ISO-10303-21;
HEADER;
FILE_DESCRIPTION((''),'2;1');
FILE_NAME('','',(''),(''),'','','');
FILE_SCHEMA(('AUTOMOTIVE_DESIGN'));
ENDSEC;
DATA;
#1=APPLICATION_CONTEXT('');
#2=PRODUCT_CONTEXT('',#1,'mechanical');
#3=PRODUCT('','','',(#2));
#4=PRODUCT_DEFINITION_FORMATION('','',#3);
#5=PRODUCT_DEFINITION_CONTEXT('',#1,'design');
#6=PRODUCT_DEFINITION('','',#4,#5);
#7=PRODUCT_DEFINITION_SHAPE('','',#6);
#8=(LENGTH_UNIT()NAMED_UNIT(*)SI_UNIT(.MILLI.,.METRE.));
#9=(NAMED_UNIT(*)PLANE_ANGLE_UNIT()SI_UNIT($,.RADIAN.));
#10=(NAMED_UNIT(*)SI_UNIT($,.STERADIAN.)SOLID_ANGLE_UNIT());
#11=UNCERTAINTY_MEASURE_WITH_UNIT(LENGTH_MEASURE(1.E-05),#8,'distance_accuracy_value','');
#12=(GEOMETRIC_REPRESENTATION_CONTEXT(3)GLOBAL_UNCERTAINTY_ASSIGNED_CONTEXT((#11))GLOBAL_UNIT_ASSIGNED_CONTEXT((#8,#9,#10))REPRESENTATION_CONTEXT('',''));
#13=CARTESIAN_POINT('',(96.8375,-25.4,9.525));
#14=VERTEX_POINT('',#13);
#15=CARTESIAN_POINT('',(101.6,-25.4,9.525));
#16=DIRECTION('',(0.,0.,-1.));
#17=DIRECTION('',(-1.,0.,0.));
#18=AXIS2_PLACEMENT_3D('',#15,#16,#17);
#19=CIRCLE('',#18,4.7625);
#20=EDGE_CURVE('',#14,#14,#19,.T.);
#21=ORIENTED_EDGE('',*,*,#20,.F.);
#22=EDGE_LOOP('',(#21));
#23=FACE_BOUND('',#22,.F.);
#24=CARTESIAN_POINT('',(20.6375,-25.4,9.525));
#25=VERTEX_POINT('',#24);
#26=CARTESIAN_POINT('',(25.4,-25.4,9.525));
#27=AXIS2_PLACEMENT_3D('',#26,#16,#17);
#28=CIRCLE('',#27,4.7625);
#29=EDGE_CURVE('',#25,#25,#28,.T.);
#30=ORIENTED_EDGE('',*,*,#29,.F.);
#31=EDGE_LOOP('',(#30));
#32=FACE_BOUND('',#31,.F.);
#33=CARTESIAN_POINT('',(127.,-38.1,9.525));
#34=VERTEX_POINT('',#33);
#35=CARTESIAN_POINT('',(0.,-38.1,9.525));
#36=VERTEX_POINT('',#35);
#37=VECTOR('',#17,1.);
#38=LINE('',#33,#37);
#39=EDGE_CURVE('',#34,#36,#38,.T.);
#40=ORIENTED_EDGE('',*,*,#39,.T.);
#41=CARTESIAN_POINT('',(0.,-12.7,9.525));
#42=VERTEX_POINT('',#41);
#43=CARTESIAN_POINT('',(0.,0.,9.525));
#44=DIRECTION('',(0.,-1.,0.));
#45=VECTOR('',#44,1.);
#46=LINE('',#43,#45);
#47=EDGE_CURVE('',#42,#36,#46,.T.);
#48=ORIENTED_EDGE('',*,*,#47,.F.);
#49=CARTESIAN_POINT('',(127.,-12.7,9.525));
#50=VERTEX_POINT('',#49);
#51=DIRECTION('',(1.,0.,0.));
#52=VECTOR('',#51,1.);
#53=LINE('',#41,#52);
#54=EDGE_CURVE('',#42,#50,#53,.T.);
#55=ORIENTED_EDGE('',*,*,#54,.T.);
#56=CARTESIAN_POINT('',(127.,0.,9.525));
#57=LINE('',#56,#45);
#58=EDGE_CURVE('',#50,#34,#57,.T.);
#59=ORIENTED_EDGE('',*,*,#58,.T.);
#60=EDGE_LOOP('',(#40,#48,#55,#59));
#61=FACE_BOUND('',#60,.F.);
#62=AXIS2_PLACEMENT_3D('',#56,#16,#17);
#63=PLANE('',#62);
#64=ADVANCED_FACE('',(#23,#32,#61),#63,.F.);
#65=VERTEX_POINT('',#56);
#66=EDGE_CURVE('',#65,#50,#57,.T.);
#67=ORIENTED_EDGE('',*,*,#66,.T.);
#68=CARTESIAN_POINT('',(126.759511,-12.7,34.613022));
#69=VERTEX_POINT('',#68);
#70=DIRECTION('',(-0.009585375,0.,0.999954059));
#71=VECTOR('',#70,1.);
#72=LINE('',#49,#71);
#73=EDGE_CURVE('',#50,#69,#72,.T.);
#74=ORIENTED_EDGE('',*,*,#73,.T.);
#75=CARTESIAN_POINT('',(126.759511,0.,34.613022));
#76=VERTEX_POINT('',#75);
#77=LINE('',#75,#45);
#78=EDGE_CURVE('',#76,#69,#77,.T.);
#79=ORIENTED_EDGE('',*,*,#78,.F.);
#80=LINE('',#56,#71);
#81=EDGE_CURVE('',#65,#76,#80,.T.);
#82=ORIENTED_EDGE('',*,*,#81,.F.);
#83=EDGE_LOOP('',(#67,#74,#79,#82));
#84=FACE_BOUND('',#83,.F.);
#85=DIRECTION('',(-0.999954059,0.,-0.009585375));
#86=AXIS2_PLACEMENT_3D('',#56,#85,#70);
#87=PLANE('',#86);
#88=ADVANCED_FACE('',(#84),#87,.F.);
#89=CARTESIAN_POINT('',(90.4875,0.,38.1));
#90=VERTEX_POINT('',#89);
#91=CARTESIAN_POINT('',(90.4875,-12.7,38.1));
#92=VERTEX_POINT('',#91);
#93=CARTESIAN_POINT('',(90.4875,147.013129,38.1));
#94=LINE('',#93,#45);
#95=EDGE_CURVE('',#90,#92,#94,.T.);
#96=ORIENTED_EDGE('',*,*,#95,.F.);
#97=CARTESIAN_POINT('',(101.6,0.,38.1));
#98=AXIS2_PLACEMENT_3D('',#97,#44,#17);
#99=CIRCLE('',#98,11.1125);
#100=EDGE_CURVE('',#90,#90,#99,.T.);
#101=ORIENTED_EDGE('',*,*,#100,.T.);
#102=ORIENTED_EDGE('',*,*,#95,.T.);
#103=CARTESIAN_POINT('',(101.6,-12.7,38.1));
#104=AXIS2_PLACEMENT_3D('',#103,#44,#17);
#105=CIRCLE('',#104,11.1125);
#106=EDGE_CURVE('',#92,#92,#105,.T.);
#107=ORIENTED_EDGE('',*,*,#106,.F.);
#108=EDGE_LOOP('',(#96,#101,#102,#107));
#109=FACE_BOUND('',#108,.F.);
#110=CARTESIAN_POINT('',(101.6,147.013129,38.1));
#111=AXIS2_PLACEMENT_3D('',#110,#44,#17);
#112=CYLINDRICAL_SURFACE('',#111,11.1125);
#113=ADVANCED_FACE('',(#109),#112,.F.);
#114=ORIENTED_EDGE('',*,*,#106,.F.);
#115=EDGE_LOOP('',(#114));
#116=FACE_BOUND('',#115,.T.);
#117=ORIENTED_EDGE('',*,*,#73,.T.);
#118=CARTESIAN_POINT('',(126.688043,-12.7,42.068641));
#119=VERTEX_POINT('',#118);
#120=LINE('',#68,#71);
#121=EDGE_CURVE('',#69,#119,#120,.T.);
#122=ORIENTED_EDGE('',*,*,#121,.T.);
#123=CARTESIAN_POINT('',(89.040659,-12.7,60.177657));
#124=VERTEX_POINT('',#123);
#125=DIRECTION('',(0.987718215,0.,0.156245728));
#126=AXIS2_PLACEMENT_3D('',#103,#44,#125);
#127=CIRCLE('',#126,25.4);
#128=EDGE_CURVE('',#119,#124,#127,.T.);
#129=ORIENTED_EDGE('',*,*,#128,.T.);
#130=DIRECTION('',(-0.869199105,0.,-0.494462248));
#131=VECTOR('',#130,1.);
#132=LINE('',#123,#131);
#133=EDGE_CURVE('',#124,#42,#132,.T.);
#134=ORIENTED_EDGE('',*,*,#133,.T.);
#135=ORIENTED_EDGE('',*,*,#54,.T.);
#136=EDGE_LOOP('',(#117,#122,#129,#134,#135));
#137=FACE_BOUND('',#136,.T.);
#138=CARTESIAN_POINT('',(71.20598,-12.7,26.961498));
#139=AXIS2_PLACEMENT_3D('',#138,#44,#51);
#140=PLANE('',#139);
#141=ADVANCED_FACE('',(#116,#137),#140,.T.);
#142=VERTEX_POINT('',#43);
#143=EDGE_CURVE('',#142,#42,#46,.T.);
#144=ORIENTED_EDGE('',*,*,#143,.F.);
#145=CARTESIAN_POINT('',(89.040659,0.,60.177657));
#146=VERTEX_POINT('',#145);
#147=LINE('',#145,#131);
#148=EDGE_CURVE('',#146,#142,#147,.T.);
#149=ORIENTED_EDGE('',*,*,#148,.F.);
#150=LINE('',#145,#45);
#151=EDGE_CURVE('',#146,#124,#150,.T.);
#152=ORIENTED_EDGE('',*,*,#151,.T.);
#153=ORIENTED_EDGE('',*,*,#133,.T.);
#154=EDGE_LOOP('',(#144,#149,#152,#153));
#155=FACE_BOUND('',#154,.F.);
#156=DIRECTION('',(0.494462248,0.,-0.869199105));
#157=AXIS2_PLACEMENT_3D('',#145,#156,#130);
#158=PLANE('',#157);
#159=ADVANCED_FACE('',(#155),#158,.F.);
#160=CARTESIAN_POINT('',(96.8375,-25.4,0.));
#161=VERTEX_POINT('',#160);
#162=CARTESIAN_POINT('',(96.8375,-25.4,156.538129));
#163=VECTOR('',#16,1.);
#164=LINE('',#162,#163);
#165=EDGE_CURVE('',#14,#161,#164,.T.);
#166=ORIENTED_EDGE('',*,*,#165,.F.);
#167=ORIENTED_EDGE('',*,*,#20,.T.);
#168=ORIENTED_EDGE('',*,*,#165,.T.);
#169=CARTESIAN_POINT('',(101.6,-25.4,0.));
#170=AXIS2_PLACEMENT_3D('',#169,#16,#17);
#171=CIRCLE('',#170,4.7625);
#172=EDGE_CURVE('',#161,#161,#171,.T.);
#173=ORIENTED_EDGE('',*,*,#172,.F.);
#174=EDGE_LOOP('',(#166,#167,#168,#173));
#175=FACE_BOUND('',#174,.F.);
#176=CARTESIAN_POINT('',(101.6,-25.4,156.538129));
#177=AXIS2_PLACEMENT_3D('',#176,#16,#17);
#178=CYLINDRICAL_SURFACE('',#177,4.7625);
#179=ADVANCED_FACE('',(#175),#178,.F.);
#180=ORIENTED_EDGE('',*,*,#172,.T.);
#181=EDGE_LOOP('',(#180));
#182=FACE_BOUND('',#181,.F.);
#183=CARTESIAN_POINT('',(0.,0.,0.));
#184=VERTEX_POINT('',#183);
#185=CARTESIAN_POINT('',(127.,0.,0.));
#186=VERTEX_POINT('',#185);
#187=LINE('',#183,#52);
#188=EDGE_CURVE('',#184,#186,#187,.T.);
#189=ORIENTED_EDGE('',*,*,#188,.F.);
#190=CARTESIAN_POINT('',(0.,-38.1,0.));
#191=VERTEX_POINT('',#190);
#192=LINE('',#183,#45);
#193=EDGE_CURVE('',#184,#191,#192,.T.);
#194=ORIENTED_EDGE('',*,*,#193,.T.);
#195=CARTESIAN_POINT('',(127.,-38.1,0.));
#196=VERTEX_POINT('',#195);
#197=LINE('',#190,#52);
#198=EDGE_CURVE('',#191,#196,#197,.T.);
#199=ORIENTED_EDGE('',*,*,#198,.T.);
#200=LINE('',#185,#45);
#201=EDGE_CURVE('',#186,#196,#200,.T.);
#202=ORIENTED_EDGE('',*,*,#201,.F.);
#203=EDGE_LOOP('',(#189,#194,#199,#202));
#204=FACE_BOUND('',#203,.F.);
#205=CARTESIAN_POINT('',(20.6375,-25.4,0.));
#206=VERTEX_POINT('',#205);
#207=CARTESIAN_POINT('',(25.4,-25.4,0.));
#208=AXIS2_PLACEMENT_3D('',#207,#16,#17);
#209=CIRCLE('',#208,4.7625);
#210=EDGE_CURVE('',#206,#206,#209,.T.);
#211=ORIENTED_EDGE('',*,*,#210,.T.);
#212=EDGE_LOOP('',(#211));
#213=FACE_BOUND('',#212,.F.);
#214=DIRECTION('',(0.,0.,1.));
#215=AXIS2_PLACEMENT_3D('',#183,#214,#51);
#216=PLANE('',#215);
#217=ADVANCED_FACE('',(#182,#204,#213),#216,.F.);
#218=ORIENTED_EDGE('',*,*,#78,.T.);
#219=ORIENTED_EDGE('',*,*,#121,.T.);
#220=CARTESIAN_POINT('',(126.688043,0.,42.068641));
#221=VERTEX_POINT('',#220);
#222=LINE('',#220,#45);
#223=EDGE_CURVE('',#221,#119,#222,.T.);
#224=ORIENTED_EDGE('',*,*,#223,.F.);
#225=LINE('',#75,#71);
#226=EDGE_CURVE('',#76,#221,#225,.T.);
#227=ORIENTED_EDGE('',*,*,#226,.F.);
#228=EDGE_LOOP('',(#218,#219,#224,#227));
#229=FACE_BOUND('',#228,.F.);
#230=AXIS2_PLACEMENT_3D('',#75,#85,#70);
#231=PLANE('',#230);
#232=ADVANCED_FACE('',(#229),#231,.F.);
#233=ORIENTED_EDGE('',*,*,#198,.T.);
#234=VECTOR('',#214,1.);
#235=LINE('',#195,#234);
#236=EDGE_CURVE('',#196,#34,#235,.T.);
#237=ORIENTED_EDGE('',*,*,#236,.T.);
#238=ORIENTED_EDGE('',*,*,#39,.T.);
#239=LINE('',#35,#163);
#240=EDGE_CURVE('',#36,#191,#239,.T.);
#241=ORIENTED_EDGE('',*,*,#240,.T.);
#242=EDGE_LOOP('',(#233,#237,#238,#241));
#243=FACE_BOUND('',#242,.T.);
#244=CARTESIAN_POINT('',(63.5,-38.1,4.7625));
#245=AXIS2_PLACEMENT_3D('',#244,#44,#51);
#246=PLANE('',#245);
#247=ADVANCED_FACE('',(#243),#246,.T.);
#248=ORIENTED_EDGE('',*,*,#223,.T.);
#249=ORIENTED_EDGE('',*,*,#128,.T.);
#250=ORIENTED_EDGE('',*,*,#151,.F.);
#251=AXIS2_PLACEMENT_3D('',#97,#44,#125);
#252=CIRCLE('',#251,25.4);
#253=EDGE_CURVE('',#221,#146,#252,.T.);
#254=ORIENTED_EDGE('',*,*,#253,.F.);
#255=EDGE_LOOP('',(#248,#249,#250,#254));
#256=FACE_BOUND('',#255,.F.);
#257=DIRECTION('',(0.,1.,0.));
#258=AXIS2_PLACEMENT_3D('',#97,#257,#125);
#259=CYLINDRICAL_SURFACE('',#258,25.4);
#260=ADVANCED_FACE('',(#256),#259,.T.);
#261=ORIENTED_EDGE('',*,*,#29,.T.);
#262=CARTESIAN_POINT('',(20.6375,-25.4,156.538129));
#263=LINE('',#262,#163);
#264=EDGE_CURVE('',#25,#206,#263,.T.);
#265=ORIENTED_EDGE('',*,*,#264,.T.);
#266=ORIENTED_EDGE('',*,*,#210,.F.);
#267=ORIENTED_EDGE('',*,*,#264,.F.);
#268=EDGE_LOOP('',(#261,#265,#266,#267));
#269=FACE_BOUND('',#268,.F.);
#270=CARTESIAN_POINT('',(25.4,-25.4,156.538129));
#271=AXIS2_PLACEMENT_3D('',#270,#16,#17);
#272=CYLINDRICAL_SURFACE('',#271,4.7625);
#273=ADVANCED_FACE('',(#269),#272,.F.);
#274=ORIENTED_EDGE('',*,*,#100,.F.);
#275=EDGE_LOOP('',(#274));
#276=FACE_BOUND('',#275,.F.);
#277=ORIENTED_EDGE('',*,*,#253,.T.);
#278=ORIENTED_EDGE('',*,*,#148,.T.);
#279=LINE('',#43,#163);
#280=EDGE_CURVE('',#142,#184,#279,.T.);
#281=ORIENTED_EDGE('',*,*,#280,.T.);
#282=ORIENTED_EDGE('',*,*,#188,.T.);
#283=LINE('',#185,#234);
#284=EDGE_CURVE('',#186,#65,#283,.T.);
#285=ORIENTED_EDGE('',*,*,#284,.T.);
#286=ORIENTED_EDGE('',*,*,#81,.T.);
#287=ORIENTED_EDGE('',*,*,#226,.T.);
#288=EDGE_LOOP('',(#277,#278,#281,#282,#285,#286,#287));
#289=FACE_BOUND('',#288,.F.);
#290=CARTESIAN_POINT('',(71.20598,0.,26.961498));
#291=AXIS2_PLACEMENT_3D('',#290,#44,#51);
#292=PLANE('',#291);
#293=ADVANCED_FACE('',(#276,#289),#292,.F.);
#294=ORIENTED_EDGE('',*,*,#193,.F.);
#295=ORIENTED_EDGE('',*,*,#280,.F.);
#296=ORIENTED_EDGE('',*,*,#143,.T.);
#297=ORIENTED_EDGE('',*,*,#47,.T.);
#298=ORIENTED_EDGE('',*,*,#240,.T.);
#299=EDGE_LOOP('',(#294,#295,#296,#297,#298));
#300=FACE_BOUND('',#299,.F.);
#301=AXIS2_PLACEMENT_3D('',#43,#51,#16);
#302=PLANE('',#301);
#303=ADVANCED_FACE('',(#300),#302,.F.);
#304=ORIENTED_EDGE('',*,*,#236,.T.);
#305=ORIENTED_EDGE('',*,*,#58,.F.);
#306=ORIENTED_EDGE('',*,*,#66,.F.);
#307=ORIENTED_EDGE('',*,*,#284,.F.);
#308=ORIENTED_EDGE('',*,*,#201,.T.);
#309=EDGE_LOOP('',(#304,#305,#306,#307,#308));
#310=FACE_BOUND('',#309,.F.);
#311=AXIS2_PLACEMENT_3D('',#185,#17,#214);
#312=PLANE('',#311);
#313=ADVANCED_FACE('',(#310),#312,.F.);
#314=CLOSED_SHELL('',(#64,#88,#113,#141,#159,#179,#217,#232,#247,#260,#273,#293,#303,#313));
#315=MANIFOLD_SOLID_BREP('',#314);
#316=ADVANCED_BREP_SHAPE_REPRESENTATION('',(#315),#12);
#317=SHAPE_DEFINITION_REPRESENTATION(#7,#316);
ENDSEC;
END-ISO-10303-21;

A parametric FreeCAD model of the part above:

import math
import FreeCAD as App
import Part
import Sketcher
from FreeCAD import Vector
Q = App.Units.Quantity


def add_polygon(sketch, points):
    """Adds a closed chain of lines whose ends are joined by coincident constraints."""
    first, n = sketch.GeometryCount, len(points)
    for a, b in zip(points, points[1:] + points[:1]):
        sketch.addGeometry(Part.LineSegment(App.Vector(*a, 0), App.Vector(*b, 0)), False)
    for i in range(n):
        sketch.addConstraint(Sketcher.Constraint("Coincident", first + i, 2, first + (i + 1) % n, 1))

doc = App.newDocument("Part")
body = doc.addObject("PartDesign::Body", "Body")

sketch1 = body.newObject("Sketcher::SketchObject", "Sketch")
sketch1.AttachmentSupport = (doc.getObject("XZ_Plane"), [""])
sketch1.MapMode = "FlatFace"
add_polygon(sketch1, [(0, 10), (0, 0), (127, 0), (127, 10)])
sketch1.addConstraint(Sketcher.Constraint("Vertical", 0))
sketch1.addConstraint(Sketcher.Constraint("Horizontal", 1))
sketch1.addConstraint(Sketcher.Constraint("Vertical", 2))
sketch1.addConstraint(Sketcher.Constraint("Horizontal", 3))
sketch1.addConstraint(Sketcher.Constraint("Coincident", 0, 2, -1, 1))
sketch1.addConstraint(Sketcher.Constraint("DistanceX", 1, 1, 1, 2, Q("5 in")))
sketch1.addConstraint(Sketcher.Constraint("DistanceY", 0, 2, 0, 1, Q("0.375 in")))
pad1 = body.newObject("PartDesign::Pad", "Pad")
pad1.Profile = sketch1
pad1.Length = Q("1.5 in")

sketch2 = body.newObject("Sketcher::SketchObject", "Sketch001")
sketch2.AttachmentSupport = (doc.getObject("XZ_Plane"), [""])
sketch2.MapMode = "FlatFace"
sketch2.addGeometry(Part.LineSegment(Vector(89, 60, 0), Vector(0, 10, 0)), False)
sketch2.addGeometry(Part.LineSegment(Vector(0, 10, 0), Vector(127, 10, 0)), False)
sketch2.addGeometry(Part.LineSegment(Vector(127, 10, 0), Vector(127, 35, 0)), False)
sketch2.addGeometry(Part.LineSegment(Vector(127, 35, 0), Vector(127, 42, 0)), False)
sketch2.addGeometry(Part.ArcOfCircle(Part.Circle(Vector(102, 38, 0), Vector(0, 0, 1), 25), math.radians(9), math.radians(120)), False)
sketch2.addConstraint(Sketcher.Constraint("Coincident", 0, 2, 1, 1))
sketch2.addConstraint(Sketcher.Constraint("Coincident", 1, 2, 2, 1))
sketch2.addConstraint(Sketcher.Constraint("Coincident", 2, 2, 3, 1))
sketch2.addConstraint(Sketcher.Constraint("Coincident", 3, 2, 4, 1))
sketch2.addConstraint(Sketcher.Constraint("Tangent", 4, 2, 0, 1))
sketch2.addConstraint(Sketcher.Constraint("Horizontal", 1))
sketch2.addConstraint(Sketcher.Constraint("PointOnObject", 0, 2, -2))
sketch2.addConstraint(Sketcher.Constraint("Parallel", 2, 3))
sketch2.addConstraint(Sketcher.Constraint("Radius", 4, Q("1 in")))
sketch2.addConstraint(Sketcher.Constraint("DistanceX", 1, 1, 1, 2, Q("5 in")))
sketch2.addConstraint(Sketcher.Constraint("DistanceX", -1, 1, 4, 3, Q("4 in")))
sketch2.addConstraint(Sketcher.Constraint("DistanceY", -1, 1, 4, 3, Q("1.5 in")))
sketch2.addConstraint(Sketcher.Constraint("DistanceY", -1, 1, 0, 2, Q("0.375 in")))
sketch2.addConstraint(Sketcher.Constraint("Distance", 3, 7.455962))
sketch2.addConstraint(Sketcher.Constraint("DistanceX", -1, 1, 2, 2, 126.759511))
pad2 = body.newObject("PartDesign::Pad", "Pad001")
pad2.Profile = sketch2
pad2.Length = Q("0.5 in")

sketch3 = body.newObject("Sketcher::SketchObject", "Sketch002")
sketch3.AttachmentSupport = (doc.getObject("XZ_Plane"), [""])
sketch3.MapMode = "FlatFace"
sketch3.addGeometry(Part.Circle(Vector(102, 38, 0), Vector(0, 0, 1), 11), False)
sketch3.addConstraint(Sketcher.Constraint("Diameter", 0, Q("0.875 in")))
sketch3.addConstraint(Sketcher.Constraint("DistanceX", -1, 1, 0, 3, Q("4 in")))
sketch3.addConstraint(Sketcher.Constraint("DistanceY", -1, 1, 0, 3, Q("1.5 in")))
doc.recompute()
hole = body.newObject("PartDesign::Hole", "Hole")
hole.Profile = sketch3
hole.ThreadType = "None"
hole.Diameter = Q("0.875 in")
hole.DepthType = "ThroughAll"
hole.Reversed = True

sketch4 = body.newObject("Sketcher::SketchObject", "Sketch003")
sketch4.AttachmentSupport = (doc.getObject("XY_Plane"), [""])
sketch4.MapMode = "FlatFace"
sketch4.AttachmentOffset = App.Placement(Vector(0, 0, 0.375 * 25.4), App.Rotation())
sketch4.addGeometry(Part.Circle(Vector(25.4, -25.4, 0), Vector(0, 0, 1), 4.8), False)
sketch4.addConstraint(Sketcher.Constraint("Diameter", 0, Q("0.375 in")))
sketch4.addConstraint(Sketcher.Constraint("DistanceX", -1, 1, 0, 3, Q("1 in")))
sketch4.addConstraint(Sketcher.Constraint("DistanceY", 0, 3, -1, 1, Q("1 in")))
doc.recompute()
hole2 = body.newObject("PartDesign::Hole", "Hole001")
hole2.Profile = sketch4
hole2.ThreadType = "None"
hole2.Diameter = Q("0.375 in")
hole2.DepthType = "ThroughAll"

sketch5 = body.newObject("Sketcher::SketchObject", "Sketch004")
sketch5.AttachmentSupport = (doc.getObject("XY_Plane"), [""])
sketch5.MapMode = "FlatFace"
sketch5.AttachmentOffset = App.Placement(Vector(0, 0, 0.375 * 25.4), App.Rotation())
sketch5.addGeometry(Part.Circle(Vector(101.6, -25.4, 0), Vector(0, 0, 1), 4.8), False)
sketch5.addConstraint(Sketcher.Constraint("Diameter", 0, Q("0.375 in")))
sketch5.addConstraint(Sketcher.Constraint("DistanceX", -1, 1, 0, 3, Q("4 in")))
sketch5.addConstraint(Sketcher.Constraint("DistanceY", 0, 3, -1, 1, Q("1 in")))
doc.recompute()
hole3 = body.newObject("PartDesign::Hole", "Hole002")
hole3.Profile = sketch5
hole3.ThreadType = "None"
hole3.Diameter = Q("0.375 in")
hole3.DepthType = "ThroughAll"

doc.recompute()
